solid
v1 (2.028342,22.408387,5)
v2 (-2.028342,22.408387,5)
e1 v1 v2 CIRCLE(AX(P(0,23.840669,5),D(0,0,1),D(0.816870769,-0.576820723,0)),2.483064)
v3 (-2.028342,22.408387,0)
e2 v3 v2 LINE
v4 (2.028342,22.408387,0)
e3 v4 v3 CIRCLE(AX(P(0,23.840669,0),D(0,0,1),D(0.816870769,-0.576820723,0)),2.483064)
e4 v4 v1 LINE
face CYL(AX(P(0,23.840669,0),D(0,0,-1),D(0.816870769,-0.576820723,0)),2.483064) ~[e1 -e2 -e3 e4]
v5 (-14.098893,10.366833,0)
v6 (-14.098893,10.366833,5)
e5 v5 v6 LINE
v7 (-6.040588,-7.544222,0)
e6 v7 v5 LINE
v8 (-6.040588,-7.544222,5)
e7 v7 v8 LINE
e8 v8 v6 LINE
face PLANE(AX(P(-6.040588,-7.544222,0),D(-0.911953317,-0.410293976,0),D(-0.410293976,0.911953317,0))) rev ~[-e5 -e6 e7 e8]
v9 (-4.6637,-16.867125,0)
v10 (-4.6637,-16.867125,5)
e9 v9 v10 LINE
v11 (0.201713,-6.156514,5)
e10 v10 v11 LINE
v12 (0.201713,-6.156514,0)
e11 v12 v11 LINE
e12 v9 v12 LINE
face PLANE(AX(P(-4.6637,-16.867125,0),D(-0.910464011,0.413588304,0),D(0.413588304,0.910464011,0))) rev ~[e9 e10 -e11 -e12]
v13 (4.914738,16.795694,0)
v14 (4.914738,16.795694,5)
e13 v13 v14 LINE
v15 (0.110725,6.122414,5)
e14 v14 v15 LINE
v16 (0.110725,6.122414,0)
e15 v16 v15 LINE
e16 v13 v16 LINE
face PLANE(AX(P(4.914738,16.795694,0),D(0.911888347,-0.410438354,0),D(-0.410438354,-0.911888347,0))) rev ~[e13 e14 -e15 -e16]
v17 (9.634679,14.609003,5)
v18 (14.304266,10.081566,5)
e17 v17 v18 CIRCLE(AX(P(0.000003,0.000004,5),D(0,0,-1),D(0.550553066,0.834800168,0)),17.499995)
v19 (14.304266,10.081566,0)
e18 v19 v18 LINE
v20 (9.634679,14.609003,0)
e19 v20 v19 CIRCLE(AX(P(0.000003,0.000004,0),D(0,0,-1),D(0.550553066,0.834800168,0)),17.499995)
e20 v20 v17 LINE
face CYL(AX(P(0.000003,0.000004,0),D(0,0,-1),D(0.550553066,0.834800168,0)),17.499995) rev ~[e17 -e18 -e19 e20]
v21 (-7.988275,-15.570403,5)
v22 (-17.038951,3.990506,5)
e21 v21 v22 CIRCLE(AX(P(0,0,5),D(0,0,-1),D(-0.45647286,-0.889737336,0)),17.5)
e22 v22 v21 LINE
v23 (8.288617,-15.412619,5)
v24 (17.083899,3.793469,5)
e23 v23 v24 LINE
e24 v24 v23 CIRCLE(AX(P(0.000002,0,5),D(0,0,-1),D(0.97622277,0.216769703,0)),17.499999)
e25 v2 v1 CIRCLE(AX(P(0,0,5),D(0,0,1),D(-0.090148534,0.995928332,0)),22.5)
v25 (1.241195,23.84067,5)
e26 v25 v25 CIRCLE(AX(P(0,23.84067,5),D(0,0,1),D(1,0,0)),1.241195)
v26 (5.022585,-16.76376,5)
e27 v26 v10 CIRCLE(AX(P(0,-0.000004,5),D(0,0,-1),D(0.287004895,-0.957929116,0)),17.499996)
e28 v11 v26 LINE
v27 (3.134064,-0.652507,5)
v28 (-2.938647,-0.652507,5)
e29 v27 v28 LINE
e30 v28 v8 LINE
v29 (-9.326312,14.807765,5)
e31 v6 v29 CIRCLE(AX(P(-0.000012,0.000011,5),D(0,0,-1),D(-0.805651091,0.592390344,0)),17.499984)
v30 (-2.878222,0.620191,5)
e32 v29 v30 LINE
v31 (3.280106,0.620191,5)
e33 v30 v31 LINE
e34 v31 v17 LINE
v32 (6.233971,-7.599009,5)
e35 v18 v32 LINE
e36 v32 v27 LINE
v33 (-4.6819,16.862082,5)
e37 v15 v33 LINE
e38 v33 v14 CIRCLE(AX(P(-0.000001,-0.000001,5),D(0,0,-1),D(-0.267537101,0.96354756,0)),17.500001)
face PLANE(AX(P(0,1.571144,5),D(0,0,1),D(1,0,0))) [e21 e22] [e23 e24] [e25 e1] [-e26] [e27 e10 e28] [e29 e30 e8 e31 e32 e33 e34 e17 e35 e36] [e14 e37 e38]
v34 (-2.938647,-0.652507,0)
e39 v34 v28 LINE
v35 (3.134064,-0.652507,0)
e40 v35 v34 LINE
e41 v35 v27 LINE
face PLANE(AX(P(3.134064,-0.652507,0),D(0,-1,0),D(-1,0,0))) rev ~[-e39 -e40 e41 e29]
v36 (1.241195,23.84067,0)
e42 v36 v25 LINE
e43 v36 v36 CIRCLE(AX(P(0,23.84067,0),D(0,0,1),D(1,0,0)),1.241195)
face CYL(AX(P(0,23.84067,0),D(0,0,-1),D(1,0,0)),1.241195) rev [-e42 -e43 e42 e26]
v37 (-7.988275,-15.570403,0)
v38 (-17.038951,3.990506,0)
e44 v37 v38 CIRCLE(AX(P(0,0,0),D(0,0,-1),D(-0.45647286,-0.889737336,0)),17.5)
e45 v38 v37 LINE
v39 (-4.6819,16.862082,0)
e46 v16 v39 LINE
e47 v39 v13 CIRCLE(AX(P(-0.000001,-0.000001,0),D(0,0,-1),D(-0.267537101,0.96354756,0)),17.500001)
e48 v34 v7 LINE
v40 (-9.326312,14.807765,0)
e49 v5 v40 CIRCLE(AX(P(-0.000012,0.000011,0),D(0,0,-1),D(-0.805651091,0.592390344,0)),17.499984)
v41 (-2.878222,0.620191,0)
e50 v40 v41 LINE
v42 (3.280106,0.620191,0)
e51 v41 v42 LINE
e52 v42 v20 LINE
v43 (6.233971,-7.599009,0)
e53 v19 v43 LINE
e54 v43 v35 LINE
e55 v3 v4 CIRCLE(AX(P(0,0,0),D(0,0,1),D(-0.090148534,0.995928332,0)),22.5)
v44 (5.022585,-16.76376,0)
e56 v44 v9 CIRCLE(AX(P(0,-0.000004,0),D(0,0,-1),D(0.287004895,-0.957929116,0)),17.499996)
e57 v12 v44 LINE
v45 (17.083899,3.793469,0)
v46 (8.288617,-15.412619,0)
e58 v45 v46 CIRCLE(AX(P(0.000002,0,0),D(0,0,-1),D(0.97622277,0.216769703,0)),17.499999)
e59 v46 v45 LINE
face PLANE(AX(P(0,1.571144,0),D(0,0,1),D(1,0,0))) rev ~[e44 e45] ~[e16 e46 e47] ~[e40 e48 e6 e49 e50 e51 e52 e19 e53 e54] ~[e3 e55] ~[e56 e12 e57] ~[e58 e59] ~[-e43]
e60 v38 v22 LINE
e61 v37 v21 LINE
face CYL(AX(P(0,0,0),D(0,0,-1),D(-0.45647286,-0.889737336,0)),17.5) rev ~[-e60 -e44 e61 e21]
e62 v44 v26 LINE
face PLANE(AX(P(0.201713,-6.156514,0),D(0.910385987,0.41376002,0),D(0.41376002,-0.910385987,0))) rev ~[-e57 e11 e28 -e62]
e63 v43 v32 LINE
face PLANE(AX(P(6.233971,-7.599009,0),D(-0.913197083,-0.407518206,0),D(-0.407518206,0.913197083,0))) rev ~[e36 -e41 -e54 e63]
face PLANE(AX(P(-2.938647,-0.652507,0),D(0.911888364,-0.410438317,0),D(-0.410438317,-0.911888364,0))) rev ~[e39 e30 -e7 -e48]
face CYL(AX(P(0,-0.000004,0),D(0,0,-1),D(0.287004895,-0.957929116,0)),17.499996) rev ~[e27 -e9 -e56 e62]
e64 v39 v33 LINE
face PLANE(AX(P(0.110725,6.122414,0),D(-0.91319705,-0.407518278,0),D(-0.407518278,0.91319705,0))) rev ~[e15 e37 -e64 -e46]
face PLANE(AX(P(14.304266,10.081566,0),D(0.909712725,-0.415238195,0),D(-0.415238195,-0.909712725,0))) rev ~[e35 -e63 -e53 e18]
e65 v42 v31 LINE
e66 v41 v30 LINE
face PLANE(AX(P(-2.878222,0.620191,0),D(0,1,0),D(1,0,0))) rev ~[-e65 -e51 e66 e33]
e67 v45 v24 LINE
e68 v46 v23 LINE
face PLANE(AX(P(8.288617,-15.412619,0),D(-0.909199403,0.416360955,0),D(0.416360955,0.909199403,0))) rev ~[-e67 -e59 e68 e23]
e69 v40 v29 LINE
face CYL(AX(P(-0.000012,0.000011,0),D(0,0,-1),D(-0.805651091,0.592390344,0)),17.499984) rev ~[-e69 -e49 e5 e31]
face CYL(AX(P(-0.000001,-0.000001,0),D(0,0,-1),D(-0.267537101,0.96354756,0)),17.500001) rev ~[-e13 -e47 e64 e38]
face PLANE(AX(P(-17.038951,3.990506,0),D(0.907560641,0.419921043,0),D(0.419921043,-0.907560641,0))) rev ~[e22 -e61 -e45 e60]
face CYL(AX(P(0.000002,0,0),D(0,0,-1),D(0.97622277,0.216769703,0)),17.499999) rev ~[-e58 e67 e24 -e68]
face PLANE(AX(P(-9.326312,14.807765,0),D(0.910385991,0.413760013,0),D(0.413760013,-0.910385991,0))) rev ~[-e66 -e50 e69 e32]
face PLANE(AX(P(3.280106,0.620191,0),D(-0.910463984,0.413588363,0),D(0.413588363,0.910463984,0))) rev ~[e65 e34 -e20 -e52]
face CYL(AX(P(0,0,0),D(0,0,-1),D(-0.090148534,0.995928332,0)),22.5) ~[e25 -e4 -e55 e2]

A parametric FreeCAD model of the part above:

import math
import FreeCAD as App
import Part
import Sketcher
Q = App.Units.Quantity

doc = App.newDocument("Part")
params = doc.addObject("Spreadsheet::Sheet", "Params")
for row, (alias, value) in enumerate([
    ("sketch1_radius", "22.5 mm"),
    ("sketch1_radius2", "17.5 mm"),
    ("pad1_length", "5 mm"),
], start=1):
    params.set(f"A{row}", alias)
    params.set(f"B{row}", "=" + value)
    params.setAlias(f"B{row}", alias)

body = doc.addObject("PartDesign::Body", "Body")

sketch1 = body.newObject("Sketcher::SketchObject", "Sketch")
sketch1.AttachmentSupport = (doc.getObject("XY_Plane"), [""])
sketch1.MapMode = "FlatFace"
sketch1.addGeometry(Part.ArcOfCircle(Part.Circle(App.Vector(0, 23.8, 0), App.Vector(0, 0, 1), 2.5), math.radians(-35), math.radians(215)), False)
sketch1.addGeometry(Part.ArcOfCircle(Part.Circle(App.Vector(0, 0, 0), App.Vector(0, 0, 1), 22.5), math.radians(95), math.radians(445)), False)
sketch1.addGeometry(Part.LineSegment(App.Vector(-17, 4, 0), App.Vector(-8, -15.6, 0)), False)
sketch1.addGeometry(Part.ArcOfCircle(Part.Circle(App.Vector(0, 0, 0), App.Vector(0, 0, 1), 17.5), math.radians(167), math.radians(243)), False)
sketch1.addGeometry(Part.LineSegment(App.Vector(0.2, -6.2, 0), App.Vector(5, -16.8, 0)), False)
sketch1.addGeometry(Part.ArcOfCircle(Part.Circle(App.Vector(0, 0, 0), App.Vector(0, 0, 1), 17.5), math.radians(-105), math.radians(-73)), False)
sketch1.addGeometry(Part.LineSegment(App.Vector(-4.7, -16.9, 0), App.Vector(0.2, -6.2, 0)), False)
sketch1.addGeometry(Part.LineSegment(App.Vector(-2.9, 0.6, 0), App.Vector(3.3, 0.6, 0)), False)
sketch1.addGeometry(Part.LineSegment(App.Vector(3.3, 0.6, 0), App.Vector(9.6, 14.6, 0)), False)
sketch1.addGeometry(Part.ArcOfCircle(Part.Circle(App.Vector(0, 0, 0), App.Vector(0, 0, 1), 17.5), math.radians(35), math.radians(57)), False)
sketch1.addGeometry(Part.LineSegment(App.Vector(14.3, 10.1, 0), App.Vector(6.2, -7.6, 0)), False)
sketch1.addGeometry(Part.LineSegment(App.Vector(6.2, -7.6, 0), App.Vector(3.1, -0.7, 0)), False)
sketch1.addGeometry(Part.LineSegment(App.Vector(3.1, -0.7, 0), App.Vector(-2.9, -0.7, 0)), False)
sketch1.addGeometry(Part.LineSegment(App.Vector(-2.9, -0.7, 0), App.Vector(-6, -7.5, 0)), False)
sketch1.addGeometry(Part.LineSegment(App.Vector(-6, -7.5, 0), App.Vector(-14.1, 10.4, 0)), False)
sketch1.addGeometry(Part.ArcOfCircle(Part.Circle(App.Vector(0, 0, 0), App.Vector(0, 0, 1), 17.5), math.radians(122), math.radians(144)), False)
sketch1.addGeometry(Part.LineSegment(App.Vector(-9.3, 14.8, 0), App.Vector(-2.9, 0.6, 0)), False)
sketch1.addGeometry(Part.ArcOfCircle(Part.Circle(App.Vector(0, 0, 0), App.Vector(0, 0, 1), 17.5), math.radians(-62), math.radians(13)), False)
sketch1.addGeometry(Part.LineSegment(App.Vector(8.3, -15.4, 0), App.Vector(17.1, 3.8, 0)), False)
sketch1.addGeometry(Part.Circle(App.Vector(0, 23.8, 0), App.Vector(0, 0, 1), 1.2), False)
sketch1.addGeometry(Part.LineSegment(App.Vector(0.1, 6.1, 0), App.Vector(-4.7, 16.9, 0)), False)
sketch1.addGeometry(Part.ArcOfCircle(Part.Circle(App.Vector(0, 0, 0), App.Vector(0, 0, 1), 17.5), math.radians(74), math.radians(106)), False)
sketch1.addGeometry(Part.LineSegment(App.Vector(4.9, 16.8, 0), App.Vector(0.1, 6.1, 0)), False)
sketch1.addConstraint(Sketcher.Constraint("Coincident", 0, 1, 1, 2))
sketch1.addConstraint(Sketcher.Constraint("Coincident", 1, 1, 0, 2))
sketch1.addConstraint(Sketcher.Constraint("Coincident", 2, 1, 3, 1))
sketch1.addConstraint(Sketcher.Constraint("Coincident", 3, 2, 2, 2))
sketch1.addConstraint(Sketcher.Constraint("Coincident", 4, 2, 5, 2))
sketch1.addConstraint(Sketcher.Constraint("Coincident", 5, 1, 6, 1))
sketch1.addConstraint(Sketcher.Constraint("Coincident", 6, 2, 4, 1))
sketch1.addConstraint(Sketcher.Constraint("Coincident", 7, 2, 8, 1))
sketch1.addConstraint(Sketcher.Constraint("Coincident", 8, 2, 9, 2))
sketch1.addConstraint(Sketcher.Constraint("Coincident", 9, 1, 10, 1))
sketch1.addConstraint(Sketcher.Constraint("Coincident", 10, 2, 11, 1))
sketch1.addConstraint(Sketcher.Constraint("Coincident", 11, 2, 12, 1))
sketch1.addConstraint(Sketcher.Constraint("Coincident", 12, 2, 13, 1))
sketch1.addConstraint(Sketcher.Constraint("Coincident", 13, 2, 14, 1))
sketch1.addConstraint(Sketcher.Constraint("Coincident", 14, 2, 15, 2))
sketch1.addConstraint(Sketcher.Constraint("Coincident", 15, 1, 16, 1))
sketch1.addConstraint(Sketcher.Constraint("Coincident", 16, 2, 7, 1))
sketch1.addConstraint(Sketcher.Constraint("Coincident", 17, 1, 18, 1))
sketch1.addConstraint(Sketcher.Constraint("Coincident", 18, 2, 17, 2))
sketch1.addConstraint(Sketcher.Constraint("Coincident", 20, 2, 21, 2))
sketch1.addConstraint(Sketcher.Constraint("Coincident", 21, 1, 22, 1))
sketch1.addConstraint(Sketcher.Constraint("Coincident", 22, 2, 20, 1))
sketch1.addConstraint(Sketcher.Constraint("Horizontal", 7))
sketch1.addConstraint(Sketcher.Constraint("Horizontal", 12))
sketch1.addConstraint(Sketcher.Constraint("Coincident", 1, 3, -1, 1))
sketch1.addConstraint(Sketcher.Constraint("Coincident", 3, 3, -1, 1))
sketch1.addConstraint(Sketcher.Constraint("Coincident", 5, 3, -1, 1))
sketch1.addConstraint(Sketcher.Constraint("Coincident", 9, 3, -1, 1))
sketch1.addConstraint(Sketcher.Constraint("Coincident", 17, 3, -1, 1))
sketch1.addConstraint(Sketcher.Constraint("Coincident", 21, 3, -1, 1))
sketch1.addConstraint(Sketcher.Constraint("Coincident", 19, 3, 0, 3))
sketch1.addConstraint(Sketcher.Constraint("Equal", 5, 9))
sketch1.addConstraint(Sketcher.Constraint("Equal", 3, 17))
sketch1.addConstraint(Sketcher.Constraint("Equal", 3, 21))
sketch1.addConstraint(Sketcher.Constraint("PointOnObject", 0, 3, -2))
sketch1.addConstraint(Sketcher.Constraint("Parallel", 6, 8))
sketch1.addConstraint(Sketcher.Constraint("Parallel", 4, 16))
sketch1.addConstraint(Sketcher.Constraint("Parallel", 11, 20))
sketch1.addConstraint(Sketcher.Constraint("Parallel", 13, 22))
sketch1.addConstraint(Sketcher.Constraint("Radius", 1, Q("22.5 mm")))
sketch1.addConstraint(Sketcher.Constraint("Radius", 3, Q("17.5 mm")))
sketch1.addConstraint(Sketcher.Constraint("Diameter", 19, Q("2.48239 mm")))
sketch1.addConstraint(Sketcher.Constraint("Radius", 0, Q("2.483064 mm")))
sketch1.addConstraint(Sketcher.Constraint("Radius", 5, Q("17.499996 mm")))
sketch1.addConstraint(Sketcher.Constraint("Radius", 15, Q("17.499984 mm")))
sketch1.addConstraint(Sketcher.Constraint("DistanceX", 12, 2, 12, 1, Q("6.072711 mm")))
sketch1.addConstraint(Sketcher.Constraint("DistanceX", 5, 1, -1, 1, Q("4.6637 mm")))
sketch1.addConstraint(Sketcher.Constraint("DistanceX", -1, 1, 18, 2, Q("17.083899 mm")))
sketch1.addConstraint(Sketcher.Constraint("DistanceX", 20, 2, -1, 1, Q("4.6819 mm")))
sketch1.addConstraint(Sketcher.Constraint("DistanceY", 3, 2, 5, 3, Q("15.570399 mm")))
sketch1.addConstraint(Sketcher.Constraint("DistanceY", 10, 2, 7, 2, Q("8.2192 mm")))
sketch1.addConstraint(Sketcher.Constraint("DistanceY", 11, 2, 7, 2, Q("1.272698 mm")))
sketch1.addConstraint(Sketcher.Constraint("DistanceX", 13, 2, 6, 2, Q("6.242301 mm")))
sketch1.addConstraint(Sketcher.Constraint("Distance", 2, Q("21.55328 mm")))
sketch1.addConstraint(Sketcher.Constraint("Distance", 10, Q("19.435339 mm")))
sketch1.addConstraint(Sketcher.Constraint("Distance", 13, Q("7.55763 mm")))
sketch1.addConstraint(Sketcher.Constraint("Distance", 14, Q("19.64032 mm")))
sketch1.addConstraint(Sketcher.Constraint("Distance", 16, Q("15.58413 mm")))
sketch1.addConstraint(Sketcher.Constraint("Distance", 22, Q("11.704591 mm")))
sketch1.addConstraint(Sketcher.Constraint("DistanceX", 7, 1, 7, 2, Q("6.158328 mm")))
sketch1.addConstraint(Sketcher.Constraint("DistanceY", -1, 1, 0, 3, Q("23.840669 mm")))
sketch1.addConstraint(Sketcher.Constraint("DistanceY", 4, 2, -1, 1, Q("16.76376 mm")))
sketch1.addConstraint(Sketcher.Constraint("DistanceY", -1, 1, 7, 2, Q("0.620191 mm")))
sketch1.addConstraint(Sketcher.Constraint("DistanceX", -1, 1, 8, 2, Q("9.634679 mm")))
sketch1.addConstraint(Sketcher.Constraint("DistanceX", -1, 1, 10, 2, Q("6.233971 mm")))
sketch1.addConstraint(Sketcher.Constraint("DistanceX", 15, 1, -1, 1, Q("9.326312 mm")))
sketch1.addConstraint(Sketcher.Constraint("DistanceY", 17, 1, -1, 1, Q("15.412619 mm")))
sketch1.addConstraint(Sketcher.Constraint("DistanceY", 15, 3, 0, 3, Q("23.840658 mm")))
sketch1.addConstraint(Sketcher.Constraint("DistanceX", 1, 1, 15, 3, Q("2.02833 mm")))
sketch1.addConstraint(Sketcher.Constraint("DistanceX", 9, 3, 11, 2, Q("3.134061 mm")))
sketch1.setExpression("Constraints[39]", "Params.sketch1_radius")
sketch1.setExpression("Constraints[40]", "Params.sketch1_radius2")
pad1 = body.newObject("PartDesign::Pad", "Pad")
pad1.Profile = sketch1
pad1.setExpression("Length", "Params.pad1_length")

doc.recompute()
